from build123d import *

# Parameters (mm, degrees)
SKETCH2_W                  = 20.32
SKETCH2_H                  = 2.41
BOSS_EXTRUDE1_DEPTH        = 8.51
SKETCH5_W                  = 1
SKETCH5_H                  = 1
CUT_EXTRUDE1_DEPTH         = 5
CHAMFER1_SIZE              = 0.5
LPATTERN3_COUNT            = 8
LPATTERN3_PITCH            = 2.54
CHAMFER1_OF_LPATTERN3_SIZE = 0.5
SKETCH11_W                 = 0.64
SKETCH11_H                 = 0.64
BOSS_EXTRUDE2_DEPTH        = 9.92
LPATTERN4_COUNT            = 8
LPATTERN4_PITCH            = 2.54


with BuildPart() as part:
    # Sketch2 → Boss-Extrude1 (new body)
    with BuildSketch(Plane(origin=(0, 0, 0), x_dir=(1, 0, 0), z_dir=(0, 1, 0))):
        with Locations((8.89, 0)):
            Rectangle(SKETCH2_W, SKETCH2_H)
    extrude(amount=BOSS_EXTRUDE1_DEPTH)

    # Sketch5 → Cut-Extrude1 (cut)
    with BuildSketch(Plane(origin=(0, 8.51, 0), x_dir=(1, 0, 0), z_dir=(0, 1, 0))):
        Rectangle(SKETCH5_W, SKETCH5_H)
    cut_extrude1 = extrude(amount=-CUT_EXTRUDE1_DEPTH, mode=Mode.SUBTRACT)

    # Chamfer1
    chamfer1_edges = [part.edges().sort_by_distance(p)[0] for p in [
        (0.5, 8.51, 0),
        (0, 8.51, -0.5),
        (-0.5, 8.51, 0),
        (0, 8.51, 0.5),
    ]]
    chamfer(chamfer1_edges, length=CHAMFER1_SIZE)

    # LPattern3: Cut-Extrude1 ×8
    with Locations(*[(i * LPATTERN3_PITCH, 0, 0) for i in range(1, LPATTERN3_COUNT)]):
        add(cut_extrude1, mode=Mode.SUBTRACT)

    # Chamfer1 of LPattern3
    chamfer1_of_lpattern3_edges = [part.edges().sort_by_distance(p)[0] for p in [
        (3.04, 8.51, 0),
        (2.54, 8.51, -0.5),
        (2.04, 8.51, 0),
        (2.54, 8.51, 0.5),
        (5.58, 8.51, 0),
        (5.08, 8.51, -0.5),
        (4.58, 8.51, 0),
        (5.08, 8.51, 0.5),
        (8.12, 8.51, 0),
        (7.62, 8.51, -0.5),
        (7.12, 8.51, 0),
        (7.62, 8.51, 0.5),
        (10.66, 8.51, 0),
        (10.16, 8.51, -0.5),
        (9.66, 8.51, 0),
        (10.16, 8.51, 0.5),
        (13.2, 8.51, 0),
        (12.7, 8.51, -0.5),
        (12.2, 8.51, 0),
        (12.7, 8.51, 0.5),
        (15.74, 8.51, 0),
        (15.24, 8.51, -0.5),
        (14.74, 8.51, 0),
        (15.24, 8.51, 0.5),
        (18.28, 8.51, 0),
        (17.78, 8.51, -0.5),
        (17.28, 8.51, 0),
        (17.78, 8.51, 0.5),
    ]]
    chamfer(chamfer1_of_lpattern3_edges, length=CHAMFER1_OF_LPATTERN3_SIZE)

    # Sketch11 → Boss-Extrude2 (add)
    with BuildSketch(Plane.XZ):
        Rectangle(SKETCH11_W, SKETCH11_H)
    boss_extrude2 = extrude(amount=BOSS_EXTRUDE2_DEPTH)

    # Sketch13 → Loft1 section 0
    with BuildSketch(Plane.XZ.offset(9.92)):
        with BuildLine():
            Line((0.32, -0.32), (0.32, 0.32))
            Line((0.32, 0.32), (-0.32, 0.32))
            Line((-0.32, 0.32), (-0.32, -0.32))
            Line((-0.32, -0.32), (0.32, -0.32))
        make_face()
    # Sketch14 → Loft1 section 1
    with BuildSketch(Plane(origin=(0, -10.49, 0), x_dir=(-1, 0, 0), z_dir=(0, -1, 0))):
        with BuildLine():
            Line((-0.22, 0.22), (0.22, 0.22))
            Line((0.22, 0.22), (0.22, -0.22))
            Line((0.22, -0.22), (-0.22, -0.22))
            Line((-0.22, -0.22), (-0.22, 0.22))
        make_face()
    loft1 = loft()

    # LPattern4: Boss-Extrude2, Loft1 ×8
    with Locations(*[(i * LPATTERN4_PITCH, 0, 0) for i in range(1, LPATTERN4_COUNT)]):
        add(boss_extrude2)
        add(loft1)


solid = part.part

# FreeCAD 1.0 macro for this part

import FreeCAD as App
import Part
import Sketcher
from FreeCAD import Vector
Q = App.Units.Quantity


def edges_at(feature, points):
    """Names of the edges that pass closest to the given points."""
    edges = feature.Shape.Edges
    near = lambda p: min(range(len(edges)), key=lambda i: edges[i].distToShape(Part.Vertex(*p))[0])
    return sorted({f"Edge{near(p) + 1}" for p in points})


def add_polygon(sketch, points):
    """Adds a closed chain of lines whose ends are joined by coincident constraints."""
    first, n = sketch.GeometryCount, len(points)
    for a, b in zip(points, points[1:] + points[:1]):
        sketch.addGeometry(Part.LineSegment(App.Vector(*a, 0), App.Vector(*b, 0)), False)
    for i in range(n):
        sketch.addConstraint(Sketcher.Constraint("Coincident", first + i, 2, first + (i + 1) % n, 1))

doc = App.newDocument("Part")
body = doc.addObject("PartDesign::Body", "Body")

sketch1 = body.newObject("Sketcher::SketchObject", "Sketch")
sketch1.AttachmentSupport = (doc.getObject("XZ_Plane"), [""])
sketch1.MapMode = "FlatFace"
add_polygon(sketch1, [(-1.27, -1.205), (-1.27, 1.205), (19.05, 1.205), (19.05, -1.205)])
sketch1.addConstraint(Sketcher.Constraint("Vertical", 0))
sketch1.addConstraint(Sketcher.Constraint("Horizontal", 1))
sketch1.addConstraint(Sketcher.Constraint("Vertical", 2))
sketch1.addConstraint(Sketcher.Constraint("Horizontal", 3))
sketch1.addConstraint(Sketcher.Constraint("DistanceX", 1, 1, 1, 2, Q("20.32 mm")))
sketch1.addConstraint(Sketcher.Constraint("DistanceY", 0, 1, 0, 2, Q("2.41 mm")))
sketch1.addConstraint(Sketcher.Constraint("DistanceX", 0, 2, -1, 1, Q("1.27 mm")))
sketch1.addConstraint(Sketcher.Constraint("DistanceY", -1, 1, 0, 2, Q("1.205 mm")))
pad1 = body.newObject("PartDesign::Pad", "Pad")
pad1.Profile = sketch1
pad1.Length = 8.51
pad1.Reversed = True

sketch2 = body.newObject("Sketcher::SketchObject", "Sketch001")
sketch2.AttachmentSupport = (doc.getObject("XZ_Plane"), [""])
sketch2.MapMode = "FlatFace"
sketch2.AttachmentOffset = App.Placement(Vector(0, 0, -8.51), App.Rotation())
add_polygon(sketch2, [(-0.5, -0.5), (-0.5, 0.5), (0.5, 0.5), (0.5, -0.5)])
sketch2.addConstraint(Sketcher.Constraint("Vertical", 0))
sketch2.addConstraint(Sketcher.Constraint("Horizontal", 1))
sketch2.addConstraint(Sketcher.Constraint("Vertical", 2))
sketch2.addConstraint(Sketcher.Constraint("Horizontal", 3))
sketch2.addConstraint(Sketcher.Constraint("Symmetric", 0, 2, 2, 2, -1, 1))
sketch2.addConstraint(Sketcher.Constraint("Equal", 3, 0))
sketch2.addConstraint(Sketcher.Constraint("DistanceX", 1, 1, 1, 2, Q("1 mm")))
pocket1 = body.newObject("PartDesign::Pocket", "Pocket")
pocket1.Profile = sketch2
pocket1.Length = 5
pocket1.Reversed = True
doc.recompute()

chamfer = body.newObject("PartDesign::Chamfer", "Chamfer")
chamfer.Base = (pocket1, edges_at(pocket1, [
    (0.5, 8.51, 0),
    (0, 8.51, -0.5),
    (-0.5, 8.51, 0),
    (0, 8.51, 0.5),
]))
chamfer.Size = 0.5
doc.recompute()

linearpattern = body.newObject("PartDesign::LinearPattern", "LinearPattern")
linearpattern.Originals = [pocket1]
linearpattern.Direction = (doc.getObject("X_Axis"), [""])
linearpattern.Mode = "offset"
linearpattern.Offset = 2.54
linearpattern.Occurrences = 8
body.Tip = linearpattern
doc.recompute()

chamfer2 = body.newObject("PartDesign::Chamfer", "Chamfer001")
chamfer2.Base = (linearpattern, edges_at(linearpattern, [
    (3.04, 8.51, 0),
    (2.54, 8.51, -0.5),
    (2.04, 8.51, 0),
    (2.54, 8.51, 0.5),
    (5.58, 8.51, 0),
    (5.08, 8.51, -0.5),
    (4.58, 8.51, 0),
    (5.08, 8.51, 0.5),
    (8.12, 8.51, 0),
    (7.62, 8.51, -0.5),
    (7.12, 8.51, 0),
    (7.62, 8.51, 0.5),
    (10.66, 8.51, 0),
    (10.16, 8.51, -0.5),
    (9.66, 8.51, 0),
    (10.16, 8.51, 0.5),
    (13.2, 8.51, 0),
    (12.7, 8.51, -0.5),
    (12.2, 8.51, 0),
    (12.7, 8.51, 0.5),
    (15.74, 8.51, 0),
    (15.24, 8.51, -0.5),
    (14.74, 8.51, 0),
    (15.24, 8.51, 0.5),
    (18.28, 8.51, 0),
    (17.78, 8.51, -0.5),
    (17.28, 8.51, 0),
    (17.78, 8.51, 0.5),
]))
chamfer2.Size = 0.5

sketch3 = body.newObject("Sketcher::SketchObject", "Sketch002")
sketch3.AttachmentSupport = (doc.getObject("XZ_Plane"), [""])
sketch3.MapMode = "FlatFace"
add_polygon(sketch3, [(-0.32, 0.32), (-0.32, -0.32), (0.32, -0.32), (0.32, 0.32)])
sketch3.addConstraint(Sketcher.Constraint("Vertical", 0))
sketch3.addConstraint(Sketcher.Constraint("Horizontal", 1))
sketch3.addConstraint(Sketcher.Constraint("Vertical", 2))
sketch3.addConstraint(Sketcher.Constraint("Horizontal", 3))
sketch3.addConstraint(Sketcher.Constraint("Symmetric", 0, 2, 2, 2, -1, 1))
sketch3.addConstraint(Sketcher.Constraint("Equal", 3, 0))
sketch3.addConstraint(Sketcher.Constraint("DistanceX", 1, 1, 1, 2, Q("0.64 mm")))
pad2 = body.newObject("PartDesign::Pad", "Pad001")
pad2.Profile = sketch3
pad2.Length = 9.92

sketch4 = body.newObject("Sketcher::SketchObject", "Sketch003")
sketch4.AttachmentSupport = (doc.getObject("XZ_Plane"), [""])
sketch4.MapMode = "FlatFace"
sketch4.AttachmentOffset = App.Placement(Vector(0, 0, 9.92), App.Rotation())
add_polygon(sketch4, [(0.32, -0.32), (0.32, 0.32), (-0.32, 0.32), (-0.32, -0.32)])
sketch4.addConstraint(Sketcher.Constraint("Vertical", 0))
sketch4.addConstraint(Sketcher.Constraint("Horizontal", 1))
sketch4.addConstraint(Sketcher.Constraint("Vertical", 2))
sketch4.addConstraint(Sketcher.Constraint("Horizontal", 3))
sketch4.addConstraint(Sketcher.Constraint("Symmetric", 0, 2, 2, 2, -1, 1))
sketch4.addConstraint(Sketcher.Constraint("Equal", 3, 0))
sketch4.addConstraint(Sketcher.Constraint("DistanceX", 1, 2, 1, 1, Q("0.64 mm")))

sketch5 = body.newObject("Sketcher::SketchObject", "Sketch004")
sketch5.AttachmentSupport = (doc.getObject("XZ_Plane"), [""])
sketch5.MapMode = "FlatFace"
sketch5.AttachmentOffset = App.Placement(Vector(0, 0, 10.49), App.Rotation())
add_polygon(sketch5, [(-0.22, -0.22), (0.22, -0.22), (0.22, 0.22), (-0.22, 0.22)])
sketch5.addConstraint(Sketcher.Constraint("Horizontal", 0))
sketch5.addConstraint(Sketcher.Constraint("Vertical", 1))
sketch5.addConstraint(Sketcher.Constraint("Horizontal", 2))
sketch5.addConstraint(Sketcher.Constraint("Vertical", 3))
sketch5.addConstraint(Sketcher.Constraint("Symmetric", 0, 2, 2, 2, -1, 1))
sketch5.addConstraint(Sketcher.Constraint("Equal", 2, 1))
sketch5.addConstraint(Sketcher.Constraint("DistanceX", 0, 1, 0, 2, Q("0.44 mm")))

additiveloft = body.newObject("PartDesign::AdditiveLoft", "AdditiveLoft")
additiveloft.Profile = sketch4
additiveloft.Sections = [sketch5]
doc.recompute()

linearpattern2 = body.newObject("PartDesign::LinearPattern", "LinearPattern001")
linearpattern2.Originals = [pad2, additiveloft]
linearpattern2.Direction = (doc.getObject("X_Axis"), [""])
linearpattern2.Mode = "offset"
linearpattern2.Offset = 2.54
linearpattern2.Occurrences = 8
body.Tip = linearpattern2

doc.recompute()
